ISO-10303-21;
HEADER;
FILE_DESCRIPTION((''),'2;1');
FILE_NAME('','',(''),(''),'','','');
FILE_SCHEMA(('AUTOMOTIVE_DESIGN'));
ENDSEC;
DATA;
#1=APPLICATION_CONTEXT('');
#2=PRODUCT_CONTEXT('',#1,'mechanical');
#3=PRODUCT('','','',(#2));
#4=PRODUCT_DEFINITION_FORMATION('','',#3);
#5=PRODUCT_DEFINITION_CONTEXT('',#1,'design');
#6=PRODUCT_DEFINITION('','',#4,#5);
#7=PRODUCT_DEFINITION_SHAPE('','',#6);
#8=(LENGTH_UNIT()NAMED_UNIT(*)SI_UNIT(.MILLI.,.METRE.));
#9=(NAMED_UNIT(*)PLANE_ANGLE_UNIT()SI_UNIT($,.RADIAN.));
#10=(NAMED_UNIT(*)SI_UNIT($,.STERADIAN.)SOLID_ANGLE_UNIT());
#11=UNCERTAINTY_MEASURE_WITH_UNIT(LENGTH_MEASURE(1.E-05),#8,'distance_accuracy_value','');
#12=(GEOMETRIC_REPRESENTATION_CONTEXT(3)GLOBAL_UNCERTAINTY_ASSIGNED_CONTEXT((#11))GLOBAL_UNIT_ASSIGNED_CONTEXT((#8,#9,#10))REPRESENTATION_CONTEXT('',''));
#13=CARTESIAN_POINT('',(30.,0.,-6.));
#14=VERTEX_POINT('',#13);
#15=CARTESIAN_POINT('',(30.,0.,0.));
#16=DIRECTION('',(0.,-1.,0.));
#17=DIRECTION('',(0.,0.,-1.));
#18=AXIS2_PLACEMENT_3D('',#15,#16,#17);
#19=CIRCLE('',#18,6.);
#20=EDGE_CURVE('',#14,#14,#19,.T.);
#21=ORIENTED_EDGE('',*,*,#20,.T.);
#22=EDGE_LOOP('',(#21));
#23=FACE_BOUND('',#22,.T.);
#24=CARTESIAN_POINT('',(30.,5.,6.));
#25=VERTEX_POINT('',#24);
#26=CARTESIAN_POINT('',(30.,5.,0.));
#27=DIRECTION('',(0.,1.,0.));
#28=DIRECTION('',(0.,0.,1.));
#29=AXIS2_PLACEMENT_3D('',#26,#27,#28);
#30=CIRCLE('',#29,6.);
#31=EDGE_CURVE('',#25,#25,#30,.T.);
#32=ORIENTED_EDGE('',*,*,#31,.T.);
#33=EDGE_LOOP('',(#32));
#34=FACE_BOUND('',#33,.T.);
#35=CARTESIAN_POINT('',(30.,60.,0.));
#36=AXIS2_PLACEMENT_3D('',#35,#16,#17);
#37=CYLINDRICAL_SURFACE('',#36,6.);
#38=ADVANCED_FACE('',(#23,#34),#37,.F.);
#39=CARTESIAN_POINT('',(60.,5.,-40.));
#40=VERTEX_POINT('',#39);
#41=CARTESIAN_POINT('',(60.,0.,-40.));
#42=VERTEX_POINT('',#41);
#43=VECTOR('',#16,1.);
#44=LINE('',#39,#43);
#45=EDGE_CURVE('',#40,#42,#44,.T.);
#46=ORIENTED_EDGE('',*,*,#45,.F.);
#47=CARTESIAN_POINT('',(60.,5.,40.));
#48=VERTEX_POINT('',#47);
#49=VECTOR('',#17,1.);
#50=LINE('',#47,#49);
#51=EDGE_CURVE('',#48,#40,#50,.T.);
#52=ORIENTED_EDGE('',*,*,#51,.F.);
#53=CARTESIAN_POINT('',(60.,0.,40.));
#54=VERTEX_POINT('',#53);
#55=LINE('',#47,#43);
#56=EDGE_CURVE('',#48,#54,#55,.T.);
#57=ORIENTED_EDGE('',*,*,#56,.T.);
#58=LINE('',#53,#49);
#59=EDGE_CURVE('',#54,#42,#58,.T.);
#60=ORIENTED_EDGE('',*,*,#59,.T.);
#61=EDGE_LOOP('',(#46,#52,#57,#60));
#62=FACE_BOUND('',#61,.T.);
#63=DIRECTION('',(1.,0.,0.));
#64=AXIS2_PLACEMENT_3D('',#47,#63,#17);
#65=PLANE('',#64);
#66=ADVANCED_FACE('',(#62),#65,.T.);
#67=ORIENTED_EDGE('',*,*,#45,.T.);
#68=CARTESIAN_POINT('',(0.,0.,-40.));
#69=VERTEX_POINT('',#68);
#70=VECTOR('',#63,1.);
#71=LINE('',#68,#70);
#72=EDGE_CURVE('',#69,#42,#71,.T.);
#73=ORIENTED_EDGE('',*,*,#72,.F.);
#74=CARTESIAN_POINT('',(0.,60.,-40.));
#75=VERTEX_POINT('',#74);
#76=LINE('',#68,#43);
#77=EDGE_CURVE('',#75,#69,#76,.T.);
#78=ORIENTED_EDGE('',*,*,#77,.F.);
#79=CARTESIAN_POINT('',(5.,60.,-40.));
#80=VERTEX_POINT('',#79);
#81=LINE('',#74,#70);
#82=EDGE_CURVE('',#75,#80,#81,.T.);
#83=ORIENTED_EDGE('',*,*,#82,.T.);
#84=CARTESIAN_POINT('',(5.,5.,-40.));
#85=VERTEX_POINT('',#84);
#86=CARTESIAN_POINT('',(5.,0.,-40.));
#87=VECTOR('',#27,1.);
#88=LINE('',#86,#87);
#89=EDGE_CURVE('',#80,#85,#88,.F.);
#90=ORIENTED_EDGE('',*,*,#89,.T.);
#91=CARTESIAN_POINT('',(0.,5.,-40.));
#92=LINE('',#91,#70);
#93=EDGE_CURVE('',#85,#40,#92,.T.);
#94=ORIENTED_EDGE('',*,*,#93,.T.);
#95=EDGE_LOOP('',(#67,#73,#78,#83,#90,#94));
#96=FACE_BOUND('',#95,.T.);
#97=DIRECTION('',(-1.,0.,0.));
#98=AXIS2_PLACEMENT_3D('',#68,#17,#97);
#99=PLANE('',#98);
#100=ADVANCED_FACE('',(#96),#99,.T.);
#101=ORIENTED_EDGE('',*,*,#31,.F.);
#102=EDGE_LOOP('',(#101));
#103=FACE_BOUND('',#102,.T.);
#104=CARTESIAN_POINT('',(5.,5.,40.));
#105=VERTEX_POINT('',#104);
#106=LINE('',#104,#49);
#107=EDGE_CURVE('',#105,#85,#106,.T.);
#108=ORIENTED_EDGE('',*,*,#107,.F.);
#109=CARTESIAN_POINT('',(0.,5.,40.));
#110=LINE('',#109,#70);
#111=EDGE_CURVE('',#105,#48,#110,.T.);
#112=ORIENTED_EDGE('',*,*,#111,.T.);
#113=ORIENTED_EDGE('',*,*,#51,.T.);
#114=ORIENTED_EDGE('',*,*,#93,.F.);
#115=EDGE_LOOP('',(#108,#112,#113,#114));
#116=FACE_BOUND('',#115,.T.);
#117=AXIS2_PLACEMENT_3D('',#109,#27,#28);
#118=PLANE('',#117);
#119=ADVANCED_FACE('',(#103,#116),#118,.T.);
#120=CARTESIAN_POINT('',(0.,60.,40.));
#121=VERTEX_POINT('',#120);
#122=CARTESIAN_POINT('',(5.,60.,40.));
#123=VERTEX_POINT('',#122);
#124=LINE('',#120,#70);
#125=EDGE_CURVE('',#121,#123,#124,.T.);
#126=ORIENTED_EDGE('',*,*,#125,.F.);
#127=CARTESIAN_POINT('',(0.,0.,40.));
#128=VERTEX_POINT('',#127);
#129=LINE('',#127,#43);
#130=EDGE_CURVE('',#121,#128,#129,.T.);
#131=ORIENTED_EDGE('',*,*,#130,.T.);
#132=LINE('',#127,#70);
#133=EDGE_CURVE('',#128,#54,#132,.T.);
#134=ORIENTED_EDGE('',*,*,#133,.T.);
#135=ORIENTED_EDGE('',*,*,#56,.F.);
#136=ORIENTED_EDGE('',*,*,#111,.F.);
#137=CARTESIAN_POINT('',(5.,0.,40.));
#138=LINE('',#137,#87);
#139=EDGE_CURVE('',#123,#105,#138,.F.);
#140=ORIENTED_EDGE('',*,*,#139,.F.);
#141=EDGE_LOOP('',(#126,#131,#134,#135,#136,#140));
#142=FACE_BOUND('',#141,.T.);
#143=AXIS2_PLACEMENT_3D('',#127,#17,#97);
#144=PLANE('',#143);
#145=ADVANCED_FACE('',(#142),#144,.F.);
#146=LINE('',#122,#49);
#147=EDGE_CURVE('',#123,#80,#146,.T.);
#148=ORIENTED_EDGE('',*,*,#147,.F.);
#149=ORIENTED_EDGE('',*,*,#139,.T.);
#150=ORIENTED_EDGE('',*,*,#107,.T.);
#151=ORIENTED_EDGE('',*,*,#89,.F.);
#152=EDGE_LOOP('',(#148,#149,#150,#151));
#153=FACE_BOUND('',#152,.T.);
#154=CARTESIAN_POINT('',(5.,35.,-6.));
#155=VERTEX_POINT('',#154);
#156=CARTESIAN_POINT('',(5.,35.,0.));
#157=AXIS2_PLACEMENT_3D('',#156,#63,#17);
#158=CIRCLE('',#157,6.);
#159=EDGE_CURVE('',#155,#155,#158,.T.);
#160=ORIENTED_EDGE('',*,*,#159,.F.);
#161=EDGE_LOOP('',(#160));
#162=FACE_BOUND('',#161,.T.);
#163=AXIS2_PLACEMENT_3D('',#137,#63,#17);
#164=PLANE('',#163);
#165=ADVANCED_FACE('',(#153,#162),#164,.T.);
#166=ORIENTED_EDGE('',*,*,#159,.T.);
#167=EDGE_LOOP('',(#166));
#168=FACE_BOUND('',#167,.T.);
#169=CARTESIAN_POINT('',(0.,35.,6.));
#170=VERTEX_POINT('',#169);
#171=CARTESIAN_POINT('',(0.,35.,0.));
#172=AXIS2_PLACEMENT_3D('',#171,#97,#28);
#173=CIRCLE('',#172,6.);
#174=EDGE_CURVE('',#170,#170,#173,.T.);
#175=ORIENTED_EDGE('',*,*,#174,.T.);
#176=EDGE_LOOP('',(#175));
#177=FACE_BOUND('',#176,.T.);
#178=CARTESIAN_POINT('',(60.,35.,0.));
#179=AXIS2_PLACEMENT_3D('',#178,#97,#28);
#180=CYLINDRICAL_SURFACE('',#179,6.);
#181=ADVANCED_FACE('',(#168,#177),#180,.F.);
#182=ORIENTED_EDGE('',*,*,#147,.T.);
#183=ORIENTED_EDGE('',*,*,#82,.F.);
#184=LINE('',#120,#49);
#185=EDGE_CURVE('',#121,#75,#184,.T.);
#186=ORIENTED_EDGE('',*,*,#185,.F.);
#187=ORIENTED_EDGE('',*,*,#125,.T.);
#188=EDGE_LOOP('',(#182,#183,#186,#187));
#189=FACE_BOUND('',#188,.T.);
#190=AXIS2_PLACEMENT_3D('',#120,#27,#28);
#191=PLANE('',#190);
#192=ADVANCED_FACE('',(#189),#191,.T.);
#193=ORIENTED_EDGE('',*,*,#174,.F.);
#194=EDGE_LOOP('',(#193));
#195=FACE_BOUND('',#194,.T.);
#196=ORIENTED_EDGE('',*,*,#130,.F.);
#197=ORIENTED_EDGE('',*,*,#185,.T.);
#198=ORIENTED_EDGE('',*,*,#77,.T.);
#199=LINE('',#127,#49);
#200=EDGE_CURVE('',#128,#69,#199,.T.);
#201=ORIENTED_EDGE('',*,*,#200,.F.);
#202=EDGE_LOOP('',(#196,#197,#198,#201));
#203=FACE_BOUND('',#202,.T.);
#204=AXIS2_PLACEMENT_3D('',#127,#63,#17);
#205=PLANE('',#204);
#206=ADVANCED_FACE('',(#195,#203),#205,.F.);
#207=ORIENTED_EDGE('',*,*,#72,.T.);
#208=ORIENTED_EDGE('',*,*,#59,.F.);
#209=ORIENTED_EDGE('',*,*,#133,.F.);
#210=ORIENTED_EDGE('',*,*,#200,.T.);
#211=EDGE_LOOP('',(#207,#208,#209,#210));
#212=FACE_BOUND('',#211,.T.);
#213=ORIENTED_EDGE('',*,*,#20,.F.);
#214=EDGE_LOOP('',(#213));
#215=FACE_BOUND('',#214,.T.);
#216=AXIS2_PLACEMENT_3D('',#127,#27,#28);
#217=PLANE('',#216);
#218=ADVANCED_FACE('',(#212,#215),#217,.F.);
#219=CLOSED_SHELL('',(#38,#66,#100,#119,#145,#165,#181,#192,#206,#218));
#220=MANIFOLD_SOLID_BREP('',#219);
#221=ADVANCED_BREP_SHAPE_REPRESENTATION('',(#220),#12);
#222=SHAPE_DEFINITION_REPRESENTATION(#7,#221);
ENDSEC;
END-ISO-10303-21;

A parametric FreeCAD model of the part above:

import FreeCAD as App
import Part
import Sketcher

V = App.Vector


def add_polygon(sketch, points):
    """Adds a closed chain of lines whose ends are joined by coincident constraints."""
    first, n = sketch.GeometryCount, len(points)
    for a, b in zip(points, points[1:] + points[:1]):
        sketch.addGeometry(Part.LineSegment(App.Vector(*a, 0), App.Vector(*b, 0)), False)
    for i in range(n):
        sketch.addConstraint(Sketcher.Constraint("Coincident", first + i, 2, first + (i + 1) % n, 1))

doc = App.newDocument("Part")
body = doc.addObject("PartDesign::Body", "Body")

sketch1 = body.newObject("Sketcher::SketchObject", "Sketch")
sketch1.AttachmentSupport = (doc.getObject("XY_Plane"), [""])
sketch1.MapMode = "FlatFace"
add_polygon(sketch1, [(0, 0), (60, 0), (60, 5), (5, 5), (5, 60), (0, 60)])
sketch1.addConstraint([
    Sketcher.Constraint("Horizontal", 0),
    Sketcher.Constraint("Vertical", 1),
    Sketcher.Constraint("Horizontal", 2),
    Sketcher.Constraint("Vertical", 3),
    Sketcher.Constraint("Horizontal", 4),
    Sketcher.Constraint("Vertical", 5),
    Sketcher.Constraint("Coincident", 5, 2, -1, 1),
    Sketcher.Constraint("Equal", 4, 1),
    Sketcher.Constraint("Equal", 2, 3),
    Sketcher.Constraint("DistanceX", 0, 1, 0, 2, 60.0),
    Sketcher.Constraint("DistanceX", 2, 2, 2, 1, 55.0),
])
pad1 = body.newObject("PartDesign::Pad", "Pad")
pad1.Profile = sketch1
pad1.Length = 80
pad1.Midplane = True

sketch2 = body.newObject("Sketcher::SketchObject", "Sketch001")
sketch2.AttachmentSupport = (doc.getObject("XZ_Plane"), [""])
sketch2.MapMode = "FlatFace"
sketch2.addGeometry(Part.Circle(V(30, 0, 0), V(0, 0, 1), 6), False)
sketch2.addConstraint([
    Sketcher.Constraint("PointOnObject", 0, 3, -1),
    Sketcher.Constraint("Diameter", 0, 12.0),
    Sketcher.Constraint("DistanceX", -1, 1, 0, 3, 30.0),
])
pocket1 = body.newObject("PartDesign::Pocket", "Pocket")
pocket1.Profile = sketch2
pocket1.Type = "ThroughAll"

sketch3 = body.newObject("Sketcher::SketchObject", "Sketch002")
sketch3.AttachmentSupport = (doc.getObject("YZ_Plane"), [""])
sketch3.MapMode = "FlatFace"
sketch3.addGeometry(Part.Circle(V(35, 0, 0), V(0, 0, 1), 6), False)
sketch3.addConstraint([
    Sketcher.Constraint("PointOnObject", 0, 3, -1),
    Sketcher.Constraint("Diameter", 0, 12.0),
    Sketcher.Constraint("DistanceX", -1, 1, 0, 3, 35.0),
])
pocket2 = body.newObject("PartDesign::Pocket", "Pocket001")
pocket2.Profile = sketch3
pocket2.Type = "ThroughAll"
pocket2.Reversed = True

doc.recompute()
